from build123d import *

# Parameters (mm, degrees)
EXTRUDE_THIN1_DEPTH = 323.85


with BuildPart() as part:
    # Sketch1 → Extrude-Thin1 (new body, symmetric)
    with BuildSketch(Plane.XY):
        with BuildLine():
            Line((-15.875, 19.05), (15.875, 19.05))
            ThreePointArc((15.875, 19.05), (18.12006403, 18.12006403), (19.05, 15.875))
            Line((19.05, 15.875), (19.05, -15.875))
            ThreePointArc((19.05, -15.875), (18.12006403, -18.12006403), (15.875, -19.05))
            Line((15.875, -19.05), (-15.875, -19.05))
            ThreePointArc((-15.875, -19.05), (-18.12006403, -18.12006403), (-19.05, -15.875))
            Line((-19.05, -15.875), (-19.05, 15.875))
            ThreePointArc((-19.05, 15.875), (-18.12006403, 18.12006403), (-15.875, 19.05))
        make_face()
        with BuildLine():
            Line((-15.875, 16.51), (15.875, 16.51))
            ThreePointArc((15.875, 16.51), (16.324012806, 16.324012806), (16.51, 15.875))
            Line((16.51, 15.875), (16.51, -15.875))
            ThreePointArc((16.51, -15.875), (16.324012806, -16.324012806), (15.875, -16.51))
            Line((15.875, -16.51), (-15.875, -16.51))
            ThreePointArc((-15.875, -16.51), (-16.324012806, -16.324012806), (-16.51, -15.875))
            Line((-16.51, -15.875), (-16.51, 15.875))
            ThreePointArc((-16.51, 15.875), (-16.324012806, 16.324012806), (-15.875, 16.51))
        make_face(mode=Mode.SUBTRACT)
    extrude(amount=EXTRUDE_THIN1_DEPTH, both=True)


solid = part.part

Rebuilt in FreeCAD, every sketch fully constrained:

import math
import FreeCAD as App
import Part
import Sketcher
Q = App.Units.Quantity

doc = App.newDocument("Part")
body = doc.addObject("PartDesign::Body", "Body")

# Sketch on XY plane
sketch1 = body.newObject("Sketcher::SketchObject", "Sketch")
sketch1.AttachmentSupport = (doc.getObject("XY_Plane"), [""])
sketch1.MapMode = "FlatFace"
sketch1.addGeometry([
    Part.LineSegment(App.Vector(15.9, 19.1, 0), App.Vector(-15.9, 19.1, 0)),  # 0
    Part.ArcOfCircle(Part.Circle(App.Vector(-15.9, 15.9, 0), App.Vector(0, 0, 1), 3.2), math.radians(90), math.radians(180)),  # 1
    Part.LineSegment(App.Vector(-19.1, 15.9, 0), App.Vector(-19.1, -15.9, 0)),  # 2
    Part.ArcOfCircle(Part.Circle(App.Vector(-15.9, -15.9, 0), App.Vector(0, 0, 1), 3.2), math.radians(-180), math.radians(-90)),  # 3
    Part.LineSegment(App.Vector(-15.9, -19.1, 0), App.Vector(15.9, -19.1, 0)),  # 4
    Part.ArcOfCircle(Part.Circle(App.Vector(15.9, -15.9, 0), App.Vector(0, 0, 1), 3.2), math.radians(-90), math.radians(0)),  # 5
    Part.LineSegment(App.Vector(19.1, -15.9, 0), App.Vector(19.1, 15.9, 0)),  # 6
    Part.ArcOfCircle(Part.Circle(App.Vector(15.9, 15.9, 0), App.Vector(0, 0, 1), 3.2), math.radians(0), math.radians(90)),  # 7
    Part.LineSegment(App.Vector(-15.9, 16.5, 0), App.Vector(15.9, 16.5, 0)),  # 8
    Part.ArcOfCircle(Part.Circle(App.Vector(15.9, 15.9, 0), App.Vector(0, 0, 1), 0.6), math.radians(0), math.radians(90)),  # 9
    Part.LineSegment(App.Vector(16.5, 15.9, 0), App.Vector(16.5, -15.9, 0)),  # 10
    Part.ArcOfCircle(Part.Circle(App.Vector(15.9, -15.9, 0), App.Vector(0, 0, 1), 0.6), math.radians(-90), math.radians(0)),  # 11
    Part.LineSegment(App.Vector(15.9, -16.5, 0), App.Vector(-15.9, -16.5, 0)),  # 12
    Part.ArcOfCircle(Part.Circle(App.Vector(-15.9, -15.9, 0), App.Vector(0, 0, 1), 0.6), math.radians(180), math.radians(270)),  # 13
    Part.LineSegment(App.Vector(-16.5, -15.9, 0), App.Vector(-16.5, 15.9, 0)),  # 14
    Part.ArcOfCircle(Part.Circle(App.Vector(-15.9, 15.9, 0), App.Vector(0, 0, 1), 0.6), math.radians(90), math.radians(180)),  # 15
], False)
sketch1.addConstraint([
    Sketcher.Constraint("Tangent", 0, 2, 1, 1),
    Sketcher.Constraint("Tangent", 1, 2, 2, 1),
    Sketcher.Constraint("Tangent", 2, 2, 3, 1),
    Sketcher.Constraint("Tangent", 3, 2, 4, 1),
    Sketcher.Constraint("Tangent", 4, 2, 5, 1),
    Sketcher.Constraint("Tangent", 5, 2, 6, 1),
    Sketcher.Constraint("Tangent", 6, 2, 7, 1),
    Sketcher.Constraint("Tangent", 7, 2, 0, 1),
    Sketcher.Constraint("Tangent", 8, 2, 9, 2),
    Sketcher.Constraint("Tangent", 9, 1, 10, 1),
    Sketcher.Constraint("Tangent", 10, 2, 11, 2),
    Sketcher.Constraint("Tangent", 11, 1, 12, 1),
    Sketcher.Constraint("Tangent", 12, 2, 13, 2),
    Sketcher.Constraint("Tangent", 13, 1, 14, 1),
    Sketcher.Constraint("Tangent", 14, 2, 15, 2),
    Sketcher.Constraint("Tangent", 15, 1, 8, 1),
    Sketcher.Constraint("Horizontal", 0),
    Sketcher.Constraint("Vertical", 2),
    Sketcher.Constraint("Horizontal", 4),
    Sketcher.Constraint("Vertical", 6),
    Sketcher.Constraint("Horizontal", 8),
    Sketcher.Constraint("Vertical", 10),
    Sketcher.Constraint("Horizontal", 12),
    Sketcher.Constraint("Vertical", 14),
    Sketcher.Constraint("Coincident", 9, 3, 7, 3),
    Sketcher.Constraint("Coincident", 11, 3, 5, 3),
    Sketcher.Constraint("Coincident", 13, 3, 3, 3),
    Sketcher.Constraint("Equal", 1, 3),
    Sketcher.Constraint("Equal", 3, 5),
    Sketcher.Constraint("Equal", 5, 7),
    Sketcher.Constraint("Equal", 13, 15),
    Sketcher.Constraint("Symmetric", 1, 3, 5, 3, -1, 1),
    Sketcher.Constraint("Equal", 12, 2),
    Sketcher.Constraint("Radius", 1, Q("0.125 in")),
    Sketcher.Constraint("Radius", 9, Q("0.025 in")),
    Sketcher.Constraint("DistanceX", 0, 2, 0, 1, Q("1.25 in")),
])
pad1 = body.newObject("PartDesign::Pad", "Pad")
pad1.Profile = sketch1
pad1.Length = Q("25.5 in")
pad1.Midplane = True

doc.recompute()
